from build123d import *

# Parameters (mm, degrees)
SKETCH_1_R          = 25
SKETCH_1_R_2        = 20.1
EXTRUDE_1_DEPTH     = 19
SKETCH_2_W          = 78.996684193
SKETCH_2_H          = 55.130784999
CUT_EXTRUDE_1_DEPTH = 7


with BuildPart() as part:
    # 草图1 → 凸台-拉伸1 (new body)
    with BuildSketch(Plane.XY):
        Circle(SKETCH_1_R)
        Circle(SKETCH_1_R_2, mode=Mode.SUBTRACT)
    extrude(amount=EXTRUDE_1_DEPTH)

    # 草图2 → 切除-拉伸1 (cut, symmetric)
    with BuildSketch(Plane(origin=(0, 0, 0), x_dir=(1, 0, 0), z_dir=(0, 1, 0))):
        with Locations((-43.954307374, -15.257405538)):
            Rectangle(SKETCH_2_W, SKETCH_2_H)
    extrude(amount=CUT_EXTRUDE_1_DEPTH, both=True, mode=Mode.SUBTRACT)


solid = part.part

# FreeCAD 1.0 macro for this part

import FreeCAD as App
import Part
import Sketcher
from FreeCAD import Vector
Q = App.Units.Quantity

doc = App.newDocument("Part")
body = doc.addObject("PartDesign::Body", "Body")

# Sketch on XY plane
sketch1 = body.newObject("Sketcher::SketchObject", "Sketch")
sketch1.AttachmentSupport = (doc.getObject("XY_Plane"), [""])
sketch1.MapMode = "FlatFace"
sketch1.addGeometry([
    Part.Circle(Vector(0, 0, 0), Vector(0, 0, 1), 25),
    Part.Circle(Vector(0, 0, 0), Vector(0, 0, 1), 20),
], False)
sketch1.addConstraint([
    Sketcher.Constraint("Coincident", 0, 3, -1, 1),
    Sketcher.Constraint("Coincident", 1, 3, -1, 1),
    Sketcher.Constraint("Diameter", 0, Q("50 mm")),
    Sketcher.Constraint("Diameter", 1, Q("40.2 mm")),
])
pad1 = body.newObject("PartDesign::Pad", "Pad")
pad1.Profile = sketch1
pad1.Length = 19

# Sketch on XZ plane
sketch2 = body.newObject("Sketcher::SketchObject", "Sketch001")
sketch2.AttachmentSupport = (doc.getObject("XZ_Plane"), [""])
sketch2.MapMode = "FlatFace"
sketch2.addGeometry([
    Part.LineSegment(Vector(-83, -12, 0), Vector(-83, 43, 0)),
    Part.LineSegment(Vector(-83, 43, 0), Vector(-4, 43, 0)),
    Part.LineSegment(Vector(-4, 43, 0), Vector(-4, -12, 0)),
    Part.LineSegment(Vector(-4, -12, 0), Vector(-83, -12, 0)),
], False)
sketch2.addConstraint([
    Sketcher.Constraint("Coincident", 0, 2, 1, 1),
    Sketcher.Constraint("Coincident", 1, 2, 2, 1),
    Sketcher.Constraint("Coincident", 2, 2, 3, 1),
    Sketcher.Constraint("Coincident", 3, 2, 0, 1),
    Sketcher.Constraint("Vertical", 0),
    Sketcher.Constraint("Horizontal", 1),
    Sketcher.Constraint("Vertical", 2),
    Sketcher.Constraint("Horizontal", 3),
    Sketcher.Constraint("DistanceY", -1, 1, 0, 2, Q("42.822798 mm")),
    Sketcher.Constraint("DistanceX", 1, 1, 1, 2, Q("78.996684 mm")),
    Sketcher.Constraint("DistanceY", 0, 1, 0, 2, Q("55.130785 mm")),
    Sketcher.Constraint("DistanceX", 0, 2, -1, 1, Q("83.452649 mm")),
])
pocket1 = body.newObject("PartDesign::Pocket", "Pocket")
pocket1.Profile = sketch2
pocket1.Length = 14
pocket1.Midplane = True

doc.recompute()
